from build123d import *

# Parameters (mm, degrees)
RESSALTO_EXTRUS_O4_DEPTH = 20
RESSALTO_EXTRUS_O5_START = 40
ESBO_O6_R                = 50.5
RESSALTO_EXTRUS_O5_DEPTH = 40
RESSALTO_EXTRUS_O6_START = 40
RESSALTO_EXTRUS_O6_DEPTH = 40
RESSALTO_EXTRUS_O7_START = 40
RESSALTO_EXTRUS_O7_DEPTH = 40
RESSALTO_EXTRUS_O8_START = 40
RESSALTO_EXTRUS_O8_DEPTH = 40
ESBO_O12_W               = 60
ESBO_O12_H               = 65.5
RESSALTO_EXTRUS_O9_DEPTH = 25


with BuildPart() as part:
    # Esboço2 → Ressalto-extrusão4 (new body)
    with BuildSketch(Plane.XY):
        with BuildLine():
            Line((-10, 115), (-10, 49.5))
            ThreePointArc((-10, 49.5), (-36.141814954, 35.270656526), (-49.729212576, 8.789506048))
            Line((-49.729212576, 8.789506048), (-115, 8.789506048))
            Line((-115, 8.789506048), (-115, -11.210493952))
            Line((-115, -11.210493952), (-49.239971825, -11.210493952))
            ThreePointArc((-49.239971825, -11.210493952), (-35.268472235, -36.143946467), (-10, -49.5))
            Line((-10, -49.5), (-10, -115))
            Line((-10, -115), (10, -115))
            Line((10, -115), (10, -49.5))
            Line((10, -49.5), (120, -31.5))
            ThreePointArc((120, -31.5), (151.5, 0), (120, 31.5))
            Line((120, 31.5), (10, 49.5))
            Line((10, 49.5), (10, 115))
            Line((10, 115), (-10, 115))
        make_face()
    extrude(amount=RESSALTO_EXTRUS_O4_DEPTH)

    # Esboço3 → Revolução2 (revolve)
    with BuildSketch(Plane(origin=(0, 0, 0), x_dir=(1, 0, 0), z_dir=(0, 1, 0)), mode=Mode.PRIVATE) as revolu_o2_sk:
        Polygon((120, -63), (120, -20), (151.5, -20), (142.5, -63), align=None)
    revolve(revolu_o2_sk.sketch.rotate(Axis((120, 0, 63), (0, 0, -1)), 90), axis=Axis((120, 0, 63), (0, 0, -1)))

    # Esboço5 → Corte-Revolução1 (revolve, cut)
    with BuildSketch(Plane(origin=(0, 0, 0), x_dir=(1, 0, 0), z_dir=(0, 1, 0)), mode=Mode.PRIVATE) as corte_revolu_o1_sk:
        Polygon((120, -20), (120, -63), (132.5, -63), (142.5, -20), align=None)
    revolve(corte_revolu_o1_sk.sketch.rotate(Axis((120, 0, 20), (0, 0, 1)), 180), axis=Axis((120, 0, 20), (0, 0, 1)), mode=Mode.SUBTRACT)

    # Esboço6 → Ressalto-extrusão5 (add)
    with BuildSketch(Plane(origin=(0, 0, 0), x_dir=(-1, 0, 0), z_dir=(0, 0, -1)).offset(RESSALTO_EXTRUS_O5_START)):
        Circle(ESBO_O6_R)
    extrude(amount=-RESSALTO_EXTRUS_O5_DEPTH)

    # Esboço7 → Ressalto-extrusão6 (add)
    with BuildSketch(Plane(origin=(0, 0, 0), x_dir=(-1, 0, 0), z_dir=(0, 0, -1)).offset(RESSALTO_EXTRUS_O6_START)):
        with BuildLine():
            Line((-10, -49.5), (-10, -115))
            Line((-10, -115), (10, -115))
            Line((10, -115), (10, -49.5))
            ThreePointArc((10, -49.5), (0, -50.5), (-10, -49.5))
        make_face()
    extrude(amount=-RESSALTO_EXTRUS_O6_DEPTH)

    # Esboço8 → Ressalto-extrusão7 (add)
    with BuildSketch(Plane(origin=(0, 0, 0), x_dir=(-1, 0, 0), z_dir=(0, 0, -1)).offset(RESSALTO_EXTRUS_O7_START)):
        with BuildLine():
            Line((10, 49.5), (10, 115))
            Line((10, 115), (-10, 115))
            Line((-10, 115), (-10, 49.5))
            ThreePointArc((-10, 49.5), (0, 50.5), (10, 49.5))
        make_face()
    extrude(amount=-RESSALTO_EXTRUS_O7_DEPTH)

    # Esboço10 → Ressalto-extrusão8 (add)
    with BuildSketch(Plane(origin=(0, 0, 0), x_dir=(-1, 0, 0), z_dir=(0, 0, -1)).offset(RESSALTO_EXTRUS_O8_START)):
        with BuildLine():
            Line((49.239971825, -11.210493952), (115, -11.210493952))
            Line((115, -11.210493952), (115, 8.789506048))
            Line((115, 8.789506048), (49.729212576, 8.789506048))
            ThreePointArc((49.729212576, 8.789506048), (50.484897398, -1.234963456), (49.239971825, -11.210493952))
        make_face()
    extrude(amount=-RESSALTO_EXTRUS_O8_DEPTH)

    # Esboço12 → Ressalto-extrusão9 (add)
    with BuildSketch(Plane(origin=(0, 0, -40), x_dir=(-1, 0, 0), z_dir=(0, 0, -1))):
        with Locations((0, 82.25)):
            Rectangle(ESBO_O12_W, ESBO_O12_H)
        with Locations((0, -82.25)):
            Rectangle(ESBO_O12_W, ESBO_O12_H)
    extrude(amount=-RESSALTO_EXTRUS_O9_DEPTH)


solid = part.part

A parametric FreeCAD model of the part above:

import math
import FreeCAD as App
import Part
import Sketcher
Q = App.Units.Quantity

doc = App.newDocument("Part")
body = doc.addObject("PartDesign::Body", "Body")

# Sketch on XY plane
sketch1 = body.newObject("Sketcher::SketchObject", "Sketch")
sketch1.AttachmentSupport = (doc.getObject("XY_Plane"), [""])
sketch1.MapMode = "FlatFace"
sketch1.addGeometry([
    Part.LineSegment(App.Vector(-10, 115, 0), App.Vector(-10, 50, 0)),  # 0
    Part.ArcOfCircle(Part.Circle(App.Vector(0, 0, 0), App.Vector(0, 0, 1), 51), math.radians(101), math.radians(170)),  # 1
    Part.LineSegment(App.Vector(-50, 9, 0), App.Vector(-115, 9, 0)),  # 2
    Part.LineSegment(App.Vector(-115, 9, 0), App.Vector(-115, -11, 0)),  # 3
    Part.LineSegment(App.Vector(-115, -11, 0), App.Vector(-49, -11, 0)),  # 4
    Part.ArcOfCircle(Part.Circle(App.Vector(0, 0, 0), App.Vector(0, 0, 1), 50), math.radians(-167), math.radians(-101)),  # 5
    Part.LineSegment(App.Vector(-10, -50, 0), App.Vector(-10, -115, 0)),  # 6
    Part.LineSegment(App.Vector(-10, -115, 0), App.Vector(10, -115, 0)),  # 7
    Part.LineSegment(App.Vector(10, -115, 0), App.Vector(10, -50, 0)),  # 8
    Part.LineSegment(App.Vector(10, -50, 0), App.Vector(120, -32, 0)),  # 9
    Part.ArcOfCircle(Part.Circle(App.Vector(120, 0, 0), App.Vector(0, 0, 1), 32), math.radians(-90), math.radians(90)),  # 10
    Part.LineSegment(App.Vector(120, 32, 0), App.Vector(10, 50, 0)),  # 11
    Part.LineSegment(App.Vector(10, 50, 0), App.Vector(10, 115, 0)),  # 12
    Part.LineSegment(App.Vector(10, 115, 0), App.Vector(-10, 115, 0)),  # 13
], False)
sketch1.addConstraint([
    Sketcher.Constraint("Coincident", 0, 2, 1, 1),
    Sketcher.Constraint("Coincident", 1, 2, 2, 1),
    Sketcher.Constraint("Coincident", 2, 2, 3, 1),
    Sketcher.Constraint("Coincident", 3, 2, 4, 1),
    Sketcher.Constraint("Coincident", 4, 2, 5, 1),
    Sketcher.Constraint("Coincident", 5, 2, 6, 1),
    Sketcher.Constraint("Coincident", 6, 2, 7, 1),
    Sketcher.Constraint("Coincident", 7, 2, 8, 1),
    Sketcher.Constraint("Coincident", 8, 2, 9, 1),
    Sketcher.Constraint("Coincident", 9, 2, 10, 1),
    Sketcher.Constraint("Coincident", 10, 2, 11, 1),
    Sketcher.Constraint("Coincident", 11, 2, 12, 1),
    Sketcher.Constraint("Coincident", 12, 2, 13, 1),
    Sketcher.Constraint("Coincident", 13, 2, 0, 1),
    Sketcher.Constraint("Vertical", 0),
    Sketcher.Constraint("Horizontal", 2),
    Sketcher.Constraint("Vertical", 3),
    Sketcher.Constraint("Horizontal", 4),
    Sketcher.Constraint("Vertical", 6),
    Sketcher.Constraint("Horizontal", 7),
    Sketcher.Constraint("Vertical", 8),
    Sketcher.Constraint("Vertical", 12),
    Sketcher.Constraint("Horizontal", 13),
    Sketcher.Constraint("Coincident", 1, 3, -1, 1),
    Sketcher.Constraint("Coincident", 5, 3, -1, 1),
    Sketcher.Constraint("Equal", 1, 5),
    Sketcher.Constraint("Symmetric", 0, 2, 8, 2, -1, 1),
    Sketcher.Constraint("Symmetric", 5, 2, 11, 2, -1, 1),
    Sketcher.Constraint("Symmetric", 9, 2, 10, 2, -1),
    Sketcher.Constraint("Symmetric", 7, 2, 12, 2, -1),
    Sketcher.Constraint("Vertical", 10, 3, 9, 2),
    Sketcher.Constraint("Equal", 13, 3),
    Sketcher.Constraint("Radius", 1, Q("50.5 mm")),
    Sketcher.Constraint("Radius", 10, Q("31.5 mm")),
    Sketcher.Constraint("DistanceX", 7, 1, 7, 2, Q("20 mm")),
    Sketcher.Constraint("DistanceY", 0, 2, 0, 1, Q("65.5 mm")),
    Sketcher.Constraint("DistanceX", -1, 1, 10, 3, Q("120 mm")),
    Sketcher.Constraint("DistanceX", 2, 2, -1, 1, Q("115 mm")),
    Sketcher.Constraint("DistanceX", 4, 1, 4, 2, Q("65.760028 mm")),
])
pad1 = body.newObject("PartDesign::Pad", "Pad")
pad1.Profile = sketch1
pad1.Length = 20

# Sketch on XZ plane
sketch2 = body.newObject("Sketcher::SketchObject", "Sketch001")
sketch2.AttachmentSupport = (doc.getObject("XZ_Plane"), [""])
sketch2.MapMode = "FlatFace"
sketch2.addGeometry([
    Part.LineSegment(App.Vector(120, 20, 0), App.Vector(120, 63, 0)),
    Part.LineSegment(App.Vector(120, 63, 0), App.Vector(142, 63, 0)),
    Part.LineSegment(App.Vector(142, 63, 0), App.Vector(152, 20, 0)),
    Part.LineSegment(App.Vector(152, 20, 0), App.Vector(120, 20, 0)),
], False)
sketch2.addGeometry(Part.LineSegment(App.Vector(120, 63, 0), App.Vector(120, 20, 0)), True)  # axis
sketch2.addConstraint([
    Sketcher.Constraint("Coincident", 0, 2, 1, 1),
    Sketcher.Constraint("Coincident", 1, 2, 2, 1),
    Sketcher.Constraint("Coincident", 2, 2, 3, 1),
    Sketcher.Constraint("Coincident", 3, 2, 0, 1),
    Sketcher.Constraint("Vertical", 0),
    Sketcher.Constraint("Horizontal", 1),
    Sketcher.Constraint("Horizontal", 3),
    Sketcher.Constraint("Vertical", 4),
    Sketcher.Constraint("Coincident", 4, 1, 0, 2),
    Sketcher.Constraint("Horizontal", 2, 2, 4, 2),
    Sketcher.Constraint("DistanceY", 0, 1, 0, 2, Q("43 mm")),
    Sketcher.Constraint("DistanceX", 1, 1, 1, 2, Q("22.5 mm")),
    Sketcher.Constraint("DistanceX", 3, 2, 3, 1, Q("31.5 mm")),
    Sketcher.Constraint("DistanceX", -1, 1, 0, 2, Q("120 mm")),
    Sketcher.Constraint("DistanceY", -1, 1, 0, 2, Q("63 mm")),
])
revolution = body.newObject("PartDesign::Revolution", "Revolution")
revolution.Profile = sketch2
revolution.ReferenceAxis = (sketch2, ["Axis0"])
revolution.Angle = 360

# Sketch on XZ plane
sketch3 = body.newObject("Sketcher::SketchObject", "Sketch002")
sketch3.AttachmentSupport = (doc.getObject("XZ_Plane"), [""])
sketch3.MapMode = "FlatFace"
sketch3.addGeometry([
    Part.LineSegment(App.Vector(120, 20, 0), App.Vector(120, 63, 0)),
    Part.LineSegment(App.Vector(120, 63, 0), App.Vector(132, 63, 0)),
    Part.LineSegment(App.Vector(132, 63, 0), App.Vector(142, 20, 0)),
    Part.LineSegment(App.Vector(142, 20, 0), App.Vector(120, 20, 0)),
], False)
sketch3.addGeometry(Part.LineSegment(App.Vector(120, 20, 0), App.Vector(120, 63, 0)), True)  # axis
sketch3.addConstraint([
    Sketcher.Constraint("Coincident", 0, 2, 1, 1),
    Sketcher.Constraint("Coincident", 1, 2, 2, 1),
    Sketcher.Constraint("Coincident", 2, 2, 3, 1),
    Sketcher.Constraint("Coincident", 3, 2, 0, 1),
    Sketcher.Constraint("Vertical", 0),
    Sketcher.Constraint("Horizontal", 1),
    Sketcher.Constraint("Horizontal", 3),
    Sketcher.Constraint("Vertical", 4),
    Sketcher.Constraint("Coincident", 4, 1, 3, 2),
    Sketcher.Constraint("Horizontal", 1, 2, 4, 2),
    Sketcher.Constraint("DistanceY", 0, 1, 0, 2, Q("43 mm")),
    Sketcher.Constraint("DistanceX", 1, 1, 1, 2, Q("12.5 mm")),
    Sketcher.Constraint("DistanceX", 3, 2, 3, 1, Q("22.5 mm")),
    Sketcher.Constraint("DistanceX", -1, 1, 0, 2, Q("120 mm")),
    Sketcher.Constraint("DistanceY", -1, 1, 0, 2, Q("63 mm")),
])
groove = body.newObject("PartDesign::Groove", "Groove")
groove.Profile = sketch3
groove.ReferenceAxis = (sketch3, ["Axis0"])
groove.Angle = 360

# Sketch on XY plane
sketch4 = body.newObject("Sketcher::SketchObject", "Sketch003")
sketch4.AttachmentSupport = (doc.getObject("XY_Plane"), [""])
sketch4.MapMode = "FlatFace"
sketch4.AttachmentOffset = App.Placement(App.Vector(0, 0, -40), App.Rotation())
sketch4.addGeometry(Part.Circle(App.Vector(0, 0, 0), App.Vector(0, 0, 1), 50), False)
sketch4.addConstraint([
    Sketcher.Constraint("Coincident", 0, 3, -1, 1),
    Sketcher.Constraint("Diameter", 0, Q("101 mm")),
])
pad2 = body.newObject("PartDesign::Pad", "Pad001")
pad2.Profile = sketch4
pad2.Length = 40

# Sketch on XY plane
sketch5 = body.newObject("Sketcher::SketchObject", "Sketch004")
sketch5.AttachmentSupport = (doc.getObject("XY_Plane"), [""])
sketch5.MapMode = "FlatFace"
sketch5.AttachmentOffset = App.Placement(App.Vector(0, 0, -40), App.Rotation())
sketch5.addGeometry([
    Part.LineSegment(App.Vector(10, -50, 0), App.Vector(10, -115, 0)),
    Part.LineSegment(App.Vector(10, -115, 0), App.Vector(-10, -115, 0)),
    Part.LineSegment(App.Vector(-10, -115, 0), App.Vector(-10, -50, 0)),
    Part.ArcOfCircle(Part.Circle(App.Vector(0, 0, 0), App.Vector(0, 0, 1), 50), math.radians(-101), math.radians(-79)),
], False)
sketch5.addConstraint([
    Sketcher.Constraint("Coincident", 0, 2, 1, 1),
    Sketcher.Constraint("Coincident", 1, 2, 2, 1),
    Sketcher.Constraint("Coincident", 2, 2, 3, 1),
    Sketcher.Constraint("Coincident", 3, 2, 0, 1),
    Sketcher.Constraint("Vertical", 0),
    Sketcher.Constraint("Horizontal", 1),
    Sketcher.Constraint("Vertical", 2),
    Sketcher.Constraint("Coincident", 3, 3, -1, 1),
    Sketcher.Constraint("Horizontal", 2, 2, 3, 2),
    Sketcher.Constraint("Radius", 3, Q("50.5 mm")),
    Sketcher.Constraint("DistanceX", 1, 2, 1, 1, Q("20 mm")),
    Sketcher.Constraint("DistanceY", 0, 2, 0, 1, Q("65.5 mm")),
])
pad3 = body.newObject("PartDesign::Pad", "Pad002")
pad3.Profile = sketch5
pad3.Length = 40

# Sketch on XY plane
sketch6 = body.newObject("Sketcher::SketchObject", "Sketch005")
sketch6.AttachmentSupport = (doc.getObject("XY_Plane"), [""])
sketch6.MapMode = "FlatFace"
sketch6.AttachmentOffset = App.Placement(App.Vector(0, 0, -40), App.Rotation())
sketch6.addGeometry([
    Part.LineSegment(App.Vector(-10, 50, 0), App.Vector(-10, 115, 0)),
    Part.LineSegment(App.Vector(-10, 115, 0), App.Vector(10, 115, 0)),
    Part.LineSegment(App.Vector(10, 115, 0), App.Vector(10, 50, 0)),
    Part.ArcOfCircle(Part.Circle(App.Vector(0, 0, 0), App.Vector(0, 0, 1), 50), math.radians(79), math.radians(101)),
], False)
sketch6.addConstraint([
    Sketcher.Constraint("Coincident", 0, 2, 1, 1),
    Sketcher.Constraint("Coincident", 1, 2, 2, 1),
    Sketcher.Constraint("Coincident", 2, 2, 3, 1),
    Sketcher.Constraint("Coincident", 3, 2, 0, 1),
    Sketcher.Constraint("Vertical", 0),
    Sketcher.Constraint("Horizontal", 1),
    Sketcher.Constraint("Vertical", 2),
    Sketcher.Constraint("Coincident", 3, 3, -1, 1),
    Sketcher.Constraint("Horizontal", 2, 2, 3, 2),
    Sketcher.Constraint("Radius", 3, Q("50.5 mm")),
    Sketcher.Constraint("DistanceX", 1, 1, 1, 2, Q("20 mm")),
    Sketcher.Constraint("DistanceY", 0, 1, 0, 2, Q("65.5 mm")),
])
pad4 = body.newObject("PartDesign::Pad", "Pad003")
pad4.Profile = sketch6
pad4.Length = 40

# Sketch on XY plane
sketch7 = body.newObject("Sketcher::SketchObject", "Sketch006")
sketch7.AttachmentSupport = (doc.getObject("XY_Plane"), [""])
sketch7.MapMode = "FlatFace"
sketch7.AttachmentOffset = App.Placement(App.Vector(0, 0, -40), App.Rotation())
sketch7.addGeometry([
    Part.LineSegment(App.Vector(-49, -11, 0), App.Vector(-115, -11, 0)),
    Part.LineSegment(App.Vector(-115, -11, 0), App.Vector(-115, 9, 0)),
    Part.LineSegment(App.Vector(-115, 9, 0), App.Vector(-50, 9, 0)),
    Part.ArcOfCircle(Part.Circle(App.Vector(0, 0, 0), App.Vector(0, 0, 1), 50), math.radians(170), math.radians(193)),
], False)
sketch7.addConstraint([
    Sketcher.Constraint("Coincident", 0, 2, 1, 1),
    Sketcher.Constraint("Coincident", 1, 2, 2, 1),
    Sketcher.Constraint("Coincident", 2, 2, 3, 1),
    Sketcher.Constraint("Coincident", 3, 2, 0, 1),
    Sketcher.Constraint("Horizontal", 0),
    Sketcher.Constraint("Vertical", 1),
    Sketcher.Constraint("Horizontal", 2),
    Sketcher.Constraint("Coincident", 3, 3, -1, 1),
    Sketcher.Constraint("Radius", 3, Q("50.5 mm")),
    Sketcher.Constraint("DistanceY", 1, 1, 1, 2, Q("20 mm")),
    Sketcher.Constraint("DistanceX", 0, 2, -1, 1, Q("115 mm")),
    Sketcher.Constraint("DistanceX", 0, 2, 0, 1, Q("65.760028 mm")),
])
pad5 = body.newObject("PartDesign::Pad", "Pad004")
pad5.Profile = sketch7
pad5.Length = 40

# Sketch on XY plane
sketch8 = body.newObject("Sketcher::SketchObject", "Sketch007")
sketch8.AttachmentSupport = (doc.getObject("XY_Plane"), [""])
sketch8.MapMode = "FlatFace"
sketch8.AttachmentOffset = App.Placement(App.Vector(0, 0, -40), App.Rotation())
sketch8.addGeometry([
    Part.LineSegment(App.Vector(30, 115, 0), App.Vector(30, 50, 0)),  # 0
    Part.LineSegment(App.Vector(30, 50, 0), App.Vector(-30, 50, 0)),  # 1
    Part.LineSegment(App.Vector(-30, 50, 0), App.Vector(-30, 115, 0)),  # 2
    Part.LineSegment(App.Vector(-30, 115, 0), App.Vector(30, 115, 0)),  # 3
    Part.LineSegment(App.Vector(30, -50, 0), App.Vector(30, -115, 0)),  # 4
    Part.LineSegment(App.Vector(30, -115, 0), App.Vector(-30, -115, 0)),  # 5
    Part.LineSegment(App.Vector(-30, -115, 0), App.Vector(-30, -50, 0)),  # 6
    Part.LineSegment(App.Vector(-30, -50, 0), App.Vector(30, -50, 0)),  # 7
], False)
sketch8.addConstraint([
    Sketcher.Constraint("Coincident", 0, 2, 1, 1),
    Sketcher.Constraint("Coincident", 1, 2, 2, 1),
    Sketcher.Constraint("Coincident", 2, 2, 3, 1),
    Sketcher.Constraint("Coincident", 3, 2, 0, 1),
    Sketcher.Constraint("Coincident", 4, 2, 5, 1),
    Sketcher.Constraint("Coincident", 5, 2, 6, 1),
    Sketcher.Constraint("Coincident", 6, 2, 7, 1),
    Sketcher.Constraint("Coincident", 7, 2, 4, 1),
    Sketcher.Constraint("Vertical", 0),
    Sketcher.Constraint("Horizontal", 1),
    Sketcher.Constraint("Vertical", 2),
    Sketcher.Constraint("Horizontal", 3),
    Sketcher.Constraint("Vertical", 4),
    Sketcher.Constraint("Horizontal", 5),
    Sketcher.Constraint("Vertical", 6),
    Sketcher.Constraint("Horizontal", 7),
    Sketcher.Constraint("Symmetric", 2, 2, 4, 2, -1, 1),
    Sketcher.Constraint("Symmetric", 0, 2, 6, 2, -1, 1),
    Sketcher.Constraint("Vertical", 3, 2, 4, 2),
    Sketcher.Constraint("DistanceX", 1, 2, 1, 1, Q("60 mm")),
    Sketcher.Constraint("DistanceY", 0, 2, 0, 1, Q("65.5 mm")),
    Sketcher.Constraint("DistanceY", -1, 1, 2, 2, Q("115 mm")),
])
pad6 = body.newObject("PartDesign::Pad", "Pad005")
pad6.Profile = sketch8
pad6.Length = 25

doc.recompute()
